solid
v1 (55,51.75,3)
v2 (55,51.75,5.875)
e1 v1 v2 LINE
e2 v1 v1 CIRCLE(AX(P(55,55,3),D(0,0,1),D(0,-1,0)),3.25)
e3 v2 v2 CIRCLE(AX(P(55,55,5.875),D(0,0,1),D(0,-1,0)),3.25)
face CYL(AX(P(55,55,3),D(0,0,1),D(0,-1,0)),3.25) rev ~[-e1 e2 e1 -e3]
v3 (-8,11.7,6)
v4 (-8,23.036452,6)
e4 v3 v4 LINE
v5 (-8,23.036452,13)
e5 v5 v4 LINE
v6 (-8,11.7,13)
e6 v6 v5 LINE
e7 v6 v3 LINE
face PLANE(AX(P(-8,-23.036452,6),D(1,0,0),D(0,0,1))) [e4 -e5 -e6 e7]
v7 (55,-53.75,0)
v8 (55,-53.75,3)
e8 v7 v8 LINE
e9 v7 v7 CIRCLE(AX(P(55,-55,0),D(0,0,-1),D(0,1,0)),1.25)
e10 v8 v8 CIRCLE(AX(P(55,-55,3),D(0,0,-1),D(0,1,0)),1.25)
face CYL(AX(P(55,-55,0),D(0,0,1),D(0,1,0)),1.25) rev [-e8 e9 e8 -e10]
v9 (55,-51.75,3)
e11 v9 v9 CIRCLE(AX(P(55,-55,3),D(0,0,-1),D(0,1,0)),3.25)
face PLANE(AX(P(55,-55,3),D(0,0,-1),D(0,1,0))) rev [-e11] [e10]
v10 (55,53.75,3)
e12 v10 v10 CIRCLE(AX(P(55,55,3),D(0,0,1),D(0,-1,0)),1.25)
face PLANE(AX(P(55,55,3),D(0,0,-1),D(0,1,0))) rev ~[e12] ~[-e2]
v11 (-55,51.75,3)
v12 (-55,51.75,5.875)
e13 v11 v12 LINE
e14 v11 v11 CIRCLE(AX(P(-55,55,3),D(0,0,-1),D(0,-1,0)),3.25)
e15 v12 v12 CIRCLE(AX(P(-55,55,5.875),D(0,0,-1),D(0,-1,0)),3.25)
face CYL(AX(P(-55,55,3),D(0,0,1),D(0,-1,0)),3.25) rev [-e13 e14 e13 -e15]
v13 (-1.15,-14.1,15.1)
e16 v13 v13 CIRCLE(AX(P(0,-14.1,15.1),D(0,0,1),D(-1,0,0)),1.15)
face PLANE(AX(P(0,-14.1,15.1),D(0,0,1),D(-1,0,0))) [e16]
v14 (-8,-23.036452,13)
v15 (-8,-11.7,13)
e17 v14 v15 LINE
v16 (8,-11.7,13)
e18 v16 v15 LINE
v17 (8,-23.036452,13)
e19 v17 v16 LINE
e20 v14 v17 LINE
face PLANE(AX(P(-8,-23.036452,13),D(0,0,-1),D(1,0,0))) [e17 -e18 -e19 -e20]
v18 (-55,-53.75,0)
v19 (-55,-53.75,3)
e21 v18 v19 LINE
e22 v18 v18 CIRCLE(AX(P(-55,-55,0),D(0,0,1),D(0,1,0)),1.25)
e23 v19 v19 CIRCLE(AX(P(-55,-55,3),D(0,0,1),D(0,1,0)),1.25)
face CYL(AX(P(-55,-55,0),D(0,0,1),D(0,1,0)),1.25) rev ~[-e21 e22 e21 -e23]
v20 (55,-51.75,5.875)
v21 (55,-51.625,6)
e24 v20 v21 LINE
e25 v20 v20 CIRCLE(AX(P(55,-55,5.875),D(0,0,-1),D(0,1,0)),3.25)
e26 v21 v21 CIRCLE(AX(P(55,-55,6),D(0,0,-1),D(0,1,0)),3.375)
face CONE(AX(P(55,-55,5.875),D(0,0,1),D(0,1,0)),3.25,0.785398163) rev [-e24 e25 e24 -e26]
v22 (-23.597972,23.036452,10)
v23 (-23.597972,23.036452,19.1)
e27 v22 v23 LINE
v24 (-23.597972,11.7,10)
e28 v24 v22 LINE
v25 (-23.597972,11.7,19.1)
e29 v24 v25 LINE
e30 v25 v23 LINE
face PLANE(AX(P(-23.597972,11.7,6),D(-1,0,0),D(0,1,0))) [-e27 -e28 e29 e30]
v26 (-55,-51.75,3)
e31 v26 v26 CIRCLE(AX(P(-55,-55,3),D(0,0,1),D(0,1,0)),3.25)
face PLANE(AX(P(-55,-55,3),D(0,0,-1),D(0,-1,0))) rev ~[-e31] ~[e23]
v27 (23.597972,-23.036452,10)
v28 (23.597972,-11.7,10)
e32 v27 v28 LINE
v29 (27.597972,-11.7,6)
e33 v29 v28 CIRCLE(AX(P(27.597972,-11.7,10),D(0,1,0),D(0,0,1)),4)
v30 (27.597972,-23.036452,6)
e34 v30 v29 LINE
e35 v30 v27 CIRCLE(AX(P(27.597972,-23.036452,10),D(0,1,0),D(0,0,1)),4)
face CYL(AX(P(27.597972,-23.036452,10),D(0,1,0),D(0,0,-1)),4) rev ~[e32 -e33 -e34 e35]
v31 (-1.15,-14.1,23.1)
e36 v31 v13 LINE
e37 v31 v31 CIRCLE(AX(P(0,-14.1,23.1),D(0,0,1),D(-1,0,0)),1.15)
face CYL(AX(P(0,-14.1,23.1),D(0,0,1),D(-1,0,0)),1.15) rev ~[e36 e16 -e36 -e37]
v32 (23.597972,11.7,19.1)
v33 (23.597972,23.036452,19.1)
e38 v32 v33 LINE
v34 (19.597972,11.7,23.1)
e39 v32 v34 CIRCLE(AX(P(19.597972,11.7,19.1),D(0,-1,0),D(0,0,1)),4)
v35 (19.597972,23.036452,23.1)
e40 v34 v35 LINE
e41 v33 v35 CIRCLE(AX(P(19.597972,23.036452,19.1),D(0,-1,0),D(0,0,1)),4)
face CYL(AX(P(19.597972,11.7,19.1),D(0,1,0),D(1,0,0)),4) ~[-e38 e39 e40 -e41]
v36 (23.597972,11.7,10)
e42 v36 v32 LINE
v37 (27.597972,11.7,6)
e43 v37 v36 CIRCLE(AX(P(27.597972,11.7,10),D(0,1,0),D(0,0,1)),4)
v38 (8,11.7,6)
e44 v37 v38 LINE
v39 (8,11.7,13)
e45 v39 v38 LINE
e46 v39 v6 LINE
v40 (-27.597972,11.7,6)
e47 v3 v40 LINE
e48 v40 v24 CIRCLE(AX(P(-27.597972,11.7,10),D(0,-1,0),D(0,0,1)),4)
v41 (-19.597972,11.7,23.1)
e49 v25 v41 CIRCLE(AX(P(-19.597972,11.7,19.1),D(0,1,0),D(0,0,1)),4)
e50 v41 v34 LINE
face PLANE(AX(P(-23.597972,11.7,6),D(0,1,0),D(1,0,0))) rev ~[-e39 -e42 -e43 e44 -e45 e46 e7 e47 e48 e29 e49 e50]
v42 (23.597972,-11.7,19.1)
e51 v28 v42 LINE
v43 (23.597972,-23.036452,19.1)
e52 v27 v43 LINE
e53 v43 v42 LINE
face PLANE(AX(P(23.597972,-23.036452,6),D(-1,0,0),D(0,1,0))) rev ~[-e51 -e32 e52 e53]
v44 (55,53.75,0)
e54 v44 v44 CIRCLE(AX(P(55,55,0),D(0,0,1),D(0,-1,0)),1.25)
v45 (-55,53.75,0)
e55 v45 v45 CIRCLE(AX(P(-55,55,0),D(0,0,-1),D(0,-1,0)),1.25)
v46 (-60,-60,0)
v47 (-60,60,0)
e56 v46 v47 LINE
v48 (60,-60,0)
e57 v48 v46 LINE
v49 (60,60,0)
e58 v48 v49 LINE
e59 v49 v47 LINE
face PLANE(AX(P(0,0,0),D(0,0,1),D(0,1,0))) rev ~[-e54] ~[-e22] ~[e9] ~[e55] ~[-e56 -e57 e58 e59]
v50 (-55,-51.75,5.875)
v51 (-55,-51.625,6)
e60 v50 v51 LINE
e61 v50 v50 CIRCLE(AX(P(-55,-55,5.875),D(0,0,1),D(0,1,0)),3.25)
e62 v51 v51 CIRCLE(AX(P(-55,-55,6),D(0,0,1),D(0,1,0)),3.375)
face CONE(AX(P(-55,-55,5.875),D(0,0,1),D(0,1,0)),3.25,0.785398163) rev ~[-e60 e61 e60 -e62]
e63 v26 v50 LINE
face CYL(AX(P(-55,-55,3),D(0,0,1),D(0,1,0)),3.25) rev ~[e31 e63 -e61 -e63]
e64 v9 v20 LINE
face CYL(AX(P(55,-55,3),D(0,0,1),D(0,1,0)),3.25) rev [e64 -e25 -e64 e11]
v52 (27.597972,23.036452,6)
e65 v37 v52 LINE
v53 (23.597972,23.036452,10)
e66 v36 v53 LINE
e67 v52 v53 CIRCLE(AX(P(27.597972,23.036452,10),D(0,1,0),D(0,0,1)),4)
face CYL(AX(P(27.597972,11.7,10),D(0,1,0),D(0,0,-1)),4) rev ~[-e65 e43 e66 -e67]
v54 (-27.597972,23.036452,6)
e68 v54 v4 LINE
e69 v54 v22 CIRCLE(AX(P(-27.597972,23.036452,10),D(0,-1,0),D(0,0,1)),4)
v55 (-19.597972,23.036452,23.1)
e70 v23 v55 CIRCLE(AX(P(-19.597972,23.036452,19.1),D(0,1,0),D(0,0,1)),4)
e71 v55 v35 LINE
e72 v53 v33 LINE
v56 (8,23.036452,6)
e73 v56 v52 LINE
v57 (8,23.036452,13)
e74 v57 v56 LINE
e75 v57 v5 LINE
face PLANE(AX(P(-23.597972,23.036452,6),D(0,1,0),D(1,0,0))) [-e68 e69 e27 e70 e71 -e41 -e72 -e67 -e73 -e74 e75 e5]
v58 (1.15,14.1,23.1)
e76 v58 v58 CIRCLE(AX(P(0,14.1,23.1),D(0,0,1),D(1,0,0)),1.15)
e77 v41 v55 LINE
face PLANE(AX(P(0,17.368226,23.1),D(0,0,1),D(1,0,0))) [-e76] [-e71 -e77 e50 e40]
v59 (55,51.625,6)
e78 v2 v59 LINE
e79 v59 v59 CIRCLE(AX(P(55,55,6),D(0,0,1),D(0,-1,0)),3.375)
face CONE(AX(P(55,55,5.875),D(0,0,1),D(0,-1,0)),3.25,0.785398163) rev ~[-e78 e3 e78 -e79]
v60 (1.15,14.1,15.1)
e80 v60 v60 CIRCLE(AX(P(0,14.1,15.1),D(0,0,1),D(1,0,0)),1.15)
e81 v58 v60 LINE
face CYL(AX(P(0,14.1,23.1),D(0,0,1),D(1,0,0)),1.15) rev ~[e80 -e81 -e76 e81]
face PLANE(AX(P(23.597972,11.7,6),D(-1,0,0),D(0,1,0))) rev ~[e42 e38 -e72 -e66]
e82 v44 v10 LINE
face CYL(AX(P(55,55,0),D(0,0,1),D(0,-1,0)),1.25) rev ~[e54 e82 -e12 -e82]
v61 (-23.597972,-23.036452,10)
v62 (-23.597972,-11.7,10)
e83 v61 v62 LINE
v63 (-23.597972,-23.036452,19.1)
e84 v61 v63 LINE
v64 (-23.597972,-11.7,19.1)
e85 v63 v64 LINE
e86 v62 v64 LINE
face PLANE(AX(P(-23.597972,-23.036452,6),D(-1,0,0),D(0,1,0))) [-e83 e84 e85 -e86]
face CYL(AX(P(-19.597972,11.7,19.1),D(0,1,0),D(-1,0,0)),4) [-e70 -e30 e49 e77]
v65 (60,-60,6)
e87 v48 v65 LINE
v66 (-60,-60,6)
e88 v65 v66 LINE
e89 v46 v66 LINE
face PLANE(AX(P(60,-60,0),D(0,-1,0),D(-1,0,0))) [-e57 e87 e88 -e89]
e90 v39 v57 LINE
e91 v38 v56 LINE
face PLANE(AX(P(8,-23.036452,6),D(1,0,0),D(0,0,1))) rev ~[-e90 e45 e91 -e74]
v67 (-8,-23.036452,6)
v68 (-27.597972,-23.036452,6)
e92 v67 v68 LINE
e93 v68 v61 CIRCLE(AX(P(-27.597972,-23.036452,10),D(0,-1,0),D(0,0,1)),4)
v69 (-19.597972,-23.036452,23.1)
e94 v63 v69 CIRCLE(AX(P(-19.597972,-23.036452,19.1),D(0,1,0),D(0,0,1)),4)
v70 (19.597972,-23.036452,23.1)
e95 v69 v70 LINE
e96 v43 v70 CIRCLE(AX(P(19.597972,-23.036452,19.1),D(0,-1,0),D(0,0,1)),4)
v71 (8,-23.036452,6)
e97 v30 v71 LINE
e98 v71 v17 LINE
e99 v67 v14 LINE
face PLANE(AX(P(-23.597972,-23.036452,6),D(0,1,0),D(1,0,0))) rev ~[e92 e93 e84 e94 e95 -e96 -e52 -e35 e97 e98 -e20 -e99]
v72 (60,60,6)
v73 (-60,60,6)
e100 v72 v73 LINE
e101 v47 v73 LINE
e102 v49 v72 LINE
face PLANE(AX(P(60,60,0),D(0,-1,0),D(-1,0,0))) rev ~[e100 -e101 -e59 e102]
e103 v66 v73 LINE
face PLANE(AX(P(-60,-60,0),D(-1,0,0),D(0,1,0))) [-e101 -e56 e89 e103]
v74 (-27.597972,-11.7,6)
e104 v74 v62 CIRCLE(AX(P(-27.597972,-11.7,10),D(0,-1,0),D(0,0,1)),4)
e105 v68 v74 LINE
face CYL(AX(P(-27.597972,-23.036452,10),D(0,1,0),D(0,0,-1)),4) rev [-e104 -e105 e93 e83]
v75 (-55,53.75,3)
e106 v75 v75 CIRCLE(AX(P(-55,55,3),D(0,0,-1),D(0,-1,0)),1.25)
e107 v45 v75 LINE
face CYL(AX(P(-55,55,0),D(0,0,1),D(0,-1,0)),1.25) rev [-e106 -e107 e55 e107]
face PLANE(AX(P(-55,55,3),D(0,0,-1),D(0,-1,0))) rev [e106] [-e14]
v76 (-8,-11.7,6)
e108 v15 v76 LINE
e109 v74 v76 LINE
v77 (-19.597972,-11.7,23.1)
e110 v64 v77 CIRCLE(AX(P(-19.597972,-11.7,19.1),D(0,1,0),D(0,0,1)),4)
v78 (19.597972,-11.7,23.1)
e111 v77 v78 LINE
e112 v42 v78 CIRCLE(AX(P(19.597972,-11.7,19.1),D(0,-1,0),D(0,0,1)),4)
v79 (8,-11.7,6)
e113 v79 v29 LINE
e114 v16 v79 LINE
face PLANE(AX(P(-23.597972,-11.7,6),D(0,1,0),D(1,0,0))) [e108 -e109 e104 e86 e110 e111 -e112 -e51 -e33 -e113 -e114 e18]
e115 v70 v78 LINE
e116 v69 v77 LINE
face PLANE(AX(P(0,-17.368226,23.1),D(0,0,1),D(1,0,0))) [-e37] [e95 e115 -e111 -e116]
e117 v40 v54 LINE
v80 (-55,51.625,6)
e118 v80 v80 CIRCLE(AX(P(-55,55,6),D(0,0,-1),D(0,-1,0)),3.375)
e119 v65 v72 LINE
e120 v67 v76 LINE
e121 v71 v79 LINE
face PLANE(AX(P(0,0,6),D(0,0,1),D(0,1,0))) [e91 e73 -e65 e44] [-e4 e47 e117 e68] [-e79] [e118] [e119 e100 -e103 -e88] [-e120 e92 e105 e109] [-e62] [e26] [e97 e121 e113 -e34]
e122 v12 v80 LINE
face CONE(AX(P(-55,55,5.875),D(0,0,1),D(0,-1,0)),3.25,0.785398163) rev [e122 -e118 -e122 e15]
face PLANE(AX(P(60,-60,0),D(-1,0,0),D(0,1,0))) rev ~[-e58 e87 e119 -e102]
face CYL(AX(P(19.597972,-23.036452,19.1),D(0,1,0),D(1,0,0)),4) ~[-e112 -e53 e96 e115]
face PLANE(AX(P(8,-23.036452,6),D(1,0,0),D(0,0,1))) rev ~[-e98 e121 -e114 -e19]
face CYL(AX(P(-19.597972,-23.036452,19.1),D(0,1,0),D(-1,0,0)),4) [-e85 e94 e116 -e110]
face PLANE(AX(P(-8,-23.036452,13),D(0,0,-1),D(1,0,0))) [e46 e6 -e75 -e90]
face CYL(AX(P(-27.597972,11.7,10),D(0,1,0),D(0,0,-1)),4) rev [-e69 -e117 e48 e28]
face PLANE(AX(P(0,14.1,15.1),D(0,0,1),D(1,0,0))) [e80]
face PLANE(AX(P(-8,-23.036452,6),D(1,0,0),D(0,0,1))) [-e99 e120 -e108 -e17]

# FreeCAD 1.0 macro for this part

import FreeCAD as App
import Part
import Sketcher
from FreeCAD import Vector
Q = App.Units.Quantity


def edges_at(feature, points):
    """Names of the edges that pass closest to the given points."""
    edges = feature.Shape.Edges
    near = lambda p: min(range(len(edges)), key=lambda i: edges[i].distToShape(Part.Vertex(*p))[0])
    return sorted({f"Edge{near(p) + 1}" for p in points})

doc = App.newDocument("Part")
params = doc.addObject("Spreadsheet::Sheet", "Params")
for row, (alias, value) in enumerate([
    ("sketch1_width", "120 mm"),
    ("pad1_length", "6 mm"),
    ("sketch2_width", "2 mm"),
    ("sketch2_height", "6 mm"),
    ("sketch2_height2", "3 mm"),
    ("sketch2_width2", "1.25 mm"),
    ("groove_angle", "360 deg"),
    ("sketch3_width", "2 mm"),
    ("sketch3_height", "6 mm"),
    ("sketch3_height2", "3 mm"),
    ("sketch3_width2", "1.25 mm"),
    ("groove2_angle", "360 deg"),
    ("pad2_length", "17.1 mm"),
    ("sketch5_width", "16 mm"),
    ("sketch5_height", "7 mm"),
    ("sketch6_diameter", "2.3 mm"),
    ("pocket2_length", "8 mm"),
    ("fillet_radius", "4 mm"),
], start=1):
    params.set(f"A{row}", alias)
    params.set(f"B{row}", "=" + value)
    params.setAlias(f"B{row}", alias)

body = doc.addObject("PartDesign::Body", "Body")

# Sketch on XY plane
sketch1 = doc.addObject("Sketcher::SketchObject", "Sketch")
body.addObject(sketch1)
sketch1.AttachmentSupport = (doc.XY_Plane, [""])
sketch1.MapMode = "FlatFace"
sketch1.addGeometry([
    Part.LineSegment(Vector(-60, -60, 0), Vector(60, -60, 0)),
    Part.LineSegment(Vector(60, -60, 0), Vector(60, 60, 0)),
    Part.LineSegment(Vector(60, 60, 0), Vector(-60, 60, 0)),
    Part.LineSegment(Vector(-60, 60, 0), Vector(-60, -60, 0)),
], False)
sketch1.addConstraint([
    Sketcher.Constraint("Coincident", 0, 2, 1, 1),
    Sketcher.Constraint("Coincident", 1, 2, 2, 1),
    Sketcher.Constraint("Coincident", 2, 2, 3, 1),
    Sketcher.Constraint("Coincident", 3, 2, 0, 1),
    Sketcher.Constraint("Horizontal", 0),
    Sketcher.Constraint("Vertical", 1),
    Sketcher.Constraint("Horizontal", 2),
    Sketcher.Constraint("Vertical", 3),
    Sketcher.Constraint("Symmetric", 0, 2, 2, 2, -1, 1),
    Sketcher.Constraint("Equal", 2, 1),
    Sketcher.Constraint("DistanceX", 0, 1, 0, 2, 120.0),
])
sketch1.setExpression("Constraints[10]", "Params.sketch1_width")
pad1 = doc.addObject("PartDesign::Pad", "Pad")
body.addObject(pad1)
pad1.Profile = sketch1
pad1.setExpression("Length", "Params.pad1_length")

# Sketch on YZ plane
sketch2 = doc.addObject("Sketcher::SketchObject", "Sketch001")
body.addObject(sketch2)
sketch2.AttachmentSupport = (doc.YZ_Plane, [""])
sketch2.MapMode = "FlatFace"
sketch2.AttachmentOffset = App.Placement(Vector(0, 0, -55), App.Rotation())
sketch2.addGeometry([
    Part.LineSegment(Vector(55, 0, 0), Vector(55, 6, 0)),  # 0
    Part.LineSegment(Vector(55, 6, 0), Vector(51.62, 6, 0)),  # 1
    Part.LineSegment(Vector(51.62, 6, 0), Vector(51.75, 5.88, 0)),  # 2
    Part.LineSegment(Vector(51.75, 5.88, 0), Vector(51.75, 3, 0)),  # 3
    Part.LineSegment(Vector(51.75, 3, 0), Vector(53.75, 3, 0)),  # 4
    Part.LineSegment(Vector(53.75, 3, 0), Vector(53.75, 0, 0)),  # 5
    Part.LineSegment(Vector(53.75, 0, 0), Vector(55, 0, 0)),  # 6
], False)
sketch2.addGeometry(Part.LineSegment(Vector(55, 6, 0), Vector(55, 0, 0)), True)  # axis
sketch2.addConstraint([
    Sketcher.Constraint("Coincident", 0, 2, 1, 1),
    Sketcher.Constraint("Coincident", 1, 2, 2, 1),
    Sketcher.Constraint("Coincident", 2, 2, 3, 1),
    Sketcher.Constraint("Coincident", 3, 2, 4, 1),
    Sketcher.Constraint("Coincident", 4, 2, 5, 1),
    Sketcher.Constraint("Coincident", 5, 2, 6, 1),
    Sketcher.Constraint("Coincident", 6, 2, 0, 1),
    Sketcher.Constraint("Vertical", 0),
    Sketcher.Constraint("Horizontal", 1),
    Sketcher.Constraint("Vertical", 3),
    Sketcher.Constraint("Horizontal", 4),
    Sketcher.Constraint("Vertical", 5),
    Sketcher.Constraint("Horizontal", 6),
    Sketcher.Constraint("Vertical", 7),
    Sketcher.Constraint("Coincident", 7, 1, 0, 2),
    Sketcher.Constraint("PointOnObject", 5, 2, -1),
    Sketcher.Constraint("PointOnObject", 7, 2, -1),
    Sketcher.Constraint("DistanceX", 4, 1, 4, 2, 2.0),
    Sketcher.Constraint("DistanceY", 0, 1, 0, 2, 6.0),
    Sketcher.Constraint("DistanceY", 5, 2, 5, 1, 3.0),
    Sketcher.Constraint("Angle", 2, Q("-45 deg")),
    Sketcher.Constraint("DistanceX", -1, 1, 0, 2, 55.0),
    Sketcher.Constraint("DistanceX", 6, 1, 6, 2, 1.25),
    Sketcher.Constraint("DistanceX", 1, 2, 1, 1, 3.375),
])
sketch2.setExpression("Constraints[17]", "Params.sketch2_width")
sketch2.setExpression("Constraints[18]", "Params.sketch2_height")
sketch2.setExpression("Constraints[19]", "Params.sketch2_height2")
sketch2.setExpression("Constraints[22]", "Params.sketch2_width2")
groove = doc.addObject("PartDesign::Groove", "Groove")
body.addObject(groove)
groove.Profile = sketch2
groove.ReferenceAxis = (sketch2, ["Axis0"])
groove.setExpression("Angle", "Params.groove_angle")
doc.recompute()

mirrored = doc.addObject("PartDesign::Mirrored", "Mirrored")
body.addObject(mirrored)
mirrored.Originals = [groove]
mirrored.MirrorPlane = (doc.YZ_Plane, [""])
body.Tip = mirrored
doc.recompute()

mirrored2 = doc.addObject("PartDesign::Mirrored", "Mirrored001")
body.addObject(mirrored2)
mirrored2.Originals = [groove]
mirrored2.MirrorPlane = (doc.XZ_Plane, [""])
body.Tip = mirrored2

# Sketch on YZ plane
sketch3 = doc.addObject("Sketcher::SketchObject", "Sketch002")
body.addObject(sketch3)
sketch3.AttachmentSupport = (doc.YZ_Plane, [""])
sketch3.MapMode = "FlatFace"
sketch3.AttachmentOffset = App.Placement(Vector(0, 0, 55), App.Rotation())
sketch3.addGeometry([
    Part.LineSegment(Vector(-55, 0, 0), Vector(-55, 6, 0)),  # 0
    Part.LineSegment(Vector(-55, 6, 0), Vector(-51.62, 6, 0)),  # 1
    Part.LineSegment(Vector(-51.62, 6, 0), Vector(-51.75, 5.88, 0)),  # 2
    Part.LineSegment(Vector(-51.75, 5.88, 0), Vector(-51.75, 3, 0)),  # 3
    Part.LineSegment(Vector(-51.75, 3, 0), Vector(-53.75, 3, 0)),  # 4
    Part.LineSegment(Vector(-53.75, 3, 0), Vector(-53.75, 0, 0)),  # 5
    Part.LineSegment(Vector(-53.75, 0, 0), Vector(-55, 0, 0)),  # 6
], False)
sketch3.addGeometry(Part.LineSegment(Vector(-55, 6, 0), Vector(-55, 0, 0)), True)  # axis
sketch3.addConstraint([
    Sketcher.Constraint("Coincident", 0, 2, 1, 1),
    Sketcher.Constraint("Coincident", 1, 2, 2, 1),
    Sketcher.Constraint("Coincident", 2, 2, 3, 1),
    Sketcher.Constraint("Coincident", 3, 2, 4, 1),
    Sketcher.Constraint("Coincident", 4, 2, 5, 1),
    Sketcher.Constraint("Coincident", 5, 2, 6, 1),
    Sketcher.Constraint("Coincident", 6, 2, 0, 1),
    Sketcher.Constraint("Vertical", 0),
    Sketcher.Constraint("Horizontal", 1),
    Sketcher.Constraint("Vertical", 3),
    Sketcher.Constraint("Horizontal", 4),
    Sketcher.Constraint("Vertical", 5),
    Sketcher.Constraint("Horizontal", 6),
    Sketcher.Constraint("Vertical", 7),
    Sketcher.Constraint("Coincident", 7, 1, 0, 2),
    Sketcher.Constraint("PointOnObject", 5, 2, -1),
    Sketcher.Constraint("PointOnObject", 7, 2, -1),
    Sketcher.Constraint("DistanceX", 4, 2, 4, 1, 2.0),
    Sketcher.Constraint("DistanceY", 0, 1, 0, 2, 6.0),
    Sketcher.Constraint("DistanceY", 5, 2, 5, 1, 3.0),
    Sketcher.Constraint("Angle", 2, Q("-135 deg")),
    Sketcher.Constraint("DistanceX", 0, 2, -1, 1, 55.0),
    Sketcher.Constraint("DistanceX", 6, 2, 6, 1, 1.25),
    Sketcher.Constraint("DistanceX", 1, 1, 1, 2, 3.375),
])
sketch3.setExpression("Constraints[17]", "Params.sketch3_width")
sketch3.setExpression("Constraints[18]", "Params.sketch3_height")
sketch3.setExpression("Constraints[19]", "Params.sketch3_height2")
sketch3.setExpression("Constraints[22]", "Params.sketch3_width2")
groove2 = doc.addObject("PartDesign::Groove", "Groove001")
body.addObject(groove2)
groove2.Profile = sketch3
groove2.ReferenceAxis = (sketch3, ["Axis0"])
groove2.setExpression("Angle", "Params.groove2_angle")

# Sketch on XY plane
sketch4 = doc.addObject("Sketcher::SketchObject", "Sketch003")
body.addObject(sketch4)
sketch4.AttachmentSupport = (doc.XY_Plane, [""])
sketch4.MapMode = "FlatFace"
sketch4.AttachmentOffset = App.Placement(Vector(0, 0, 6), App.Rotation())
sketch4.addGeometry([
    Part.LineSegment(Vector(-24, -12, 0), Vector(-24, -23, 0)),  # 0
    Part.LineSegment(Vector(-24, -23, 0), Vector(24, -23, 0)),  # 1
    Part.LineSegment(Vector(24, -23, 0), Vector(24, -12, 0)),  # 2
    Part.LineSegment(Vector(24, -12, 0), Vector(-24, -12, 0)),  # 3
    Part.LineSegment(Vector(-24, 23, 0), Vector(-24, 12, 0)),  # 4
    Part.LineSegment(Vector(-24, 12, 0), Vector(24, 12, 0)),  # 5
    Part.LineSegment(Vector(24, 12, 0), Vector(24, 23, 0)),  # 6
    Part.LineSegment(Vector(24, 23, 0), Vector(-24, 23, 0)),  # 7
], False)
sketch4.addConstraint([
    Sketcher.Constraint("Coincident", 0, 2, 1, 1),
    Sketcher.Constraint("Coincident", 1, 2, 2, 1),
    Sketcher.Constraint("Coincident", 2, 2, 3, 1),
    Sketcher.Constraint("Coincident", 3, 2, 0, 1),
    Sketcher.Constraint("Coincident", 4, 2, 5, 1),
    Sketcher.Constraint("Coincident", 5, 2, 6, 1),
    Sketcher.Constraint("Coincident", 6, 2, 7, 1),
    Sketcher.Constraint("Coincident", 7, 2, 4, 1),
    Sketcher.Constraint("Vertical", 0),
    Sketcher.Constraint("Horizontal", 1),
    Sketcher.Constraint("Vertical", 2),
    Sketcher.Constraint("Horizontal", 3),
    Sketcher.Constraint("Vertical", 4),
    Sketcher.Constraint("Horizontal", 5),
    Sketcher.Constraint("Vertical", 6),
    Sketcher.Constraint("Horizontal", 7),
    Sketcher.Constraint("Symmetric", 2, 2, 4, 2, -1, 1),
    Sketcher.Constraint("Symmetric", 0, 2, 6, 2, -1, 1),
    Sketcher.Constraint("Vertical", 3, 2, 4, 2),
    Sketcher.Constraint("DistanceY", 2, 2, -1, 1, 11.7),
    Sketcher.Constraint("DistanceX", 1, 1, 1, 2, 47.195945),
    Sketcher.Constraint("DistanceY", 0, 2, 0, 1, 11.336452),
])
pad2 = doc.addObject("PartDesign::Pad", "Pad001")
body.addObject(pad2)
pad2.Profile = sketch4
pad2.setExpression("Length", "Params.pad2_length")

# Sketch on XZ plane
sketch5 = doc.addObject("Sketcher::SketchObject", "Sketch004")
body.addObject(sketch5)
sketch5.AttachmentSupport = (doc.XZ_Plane, [""])
sketch5.MapMode = "FlatFace"
sketch5.AttachmentOffset = App.Placement(Vector(0, 0, 23.036452), App.Rotation())
sketch5.addGeometry([
    Part.LineSegment(Vector(-8, 13, 0), Vector(-8, 6, 0)),
    Part.LineSegment(Vector(-8, 6, 0), Vector(8, 6, 0)),
    Part.LineSegment(Vector(8, 6, 0), Vector(8, 13, 0)),
    Part.LineSegment(Vector(8, 13, 0), Vector(-8, 13, 0)),
], False)
sketch5.addConstraint([
    Sketcher.Constraint("Coincident", 0, 2, 1, 1),
    Sketcher.Constraint("Coincident", 1, 2, 2, 1),
    Sketcher.Constraint("Coincident", 2, 2, 3, 1),
    Sketcher.Constraint("Coincident", 3, 2, 0, 1),
    Sketcher.Constraint("Vertical", 0),
    Sketcher.Constraint("Horizontal", 1),
    Sketcher.Constraint("Vertical", 2),
    Sketcher.Constraint("Horizontal", 3),
    Sketcher.Constraint("DistanceX", 1, 1, 1, 2, 16.0),
    Sketcher.Constraint("DistanceY", 0, 2, 0, 1, 7.0),
    Sketcher.Constraint("DistanceX", 0, 2, -1, 1, 8.0),
    Sketcher.Constraint("DistanceY", -1, 1, 0, 2, 6.0),
])
sketch5.setExpression("Constraints[8]", "Params.sketch5_width")
sketch5.setExpression("Constraints[9]", "Params.sketch5_height")
pocket1 = doc.addObject("PartDesign::Pocket", "Pocket")
body.addObject(pocket1)
pocket1.Profile = sketch5
pocket1.Type = "ThroughAll"

# Sketch on XY plane
sketch6 = doc.addObject("Sketcher::SketchObject", "Sketch005")
body.addObject(sketch6)
sketch6.AttachmentSupport = (doc.XY_Plane, [""])
sketch6.MapMode = "FlatFace"
sketch6.AttachmentOffset = App.Placement(Vector(0, 0, 23.1), App.Rotation())
sketch6.addGeometry([
    Part.Circle(Vector(0, 14.1, 0), Vector(0, 0, 1), 1.1),
    Part.Circle(Vector(0, -14.1, 0), Vector(0, 0, 1), 1.1),
], False)
sketch6.addConstraint([
    Sketcher.Constraint("Equal", 0, 1),
    Sketcher.Constraint("Symmetric", 0, 3, 1, 3, -1, 1),
    Sketcher.Constraint("PointOnObject", 0, 3, -2),
    Sketcher.Constraint("Diameter", 0, 2.3),
    Sketcher.Constraint("DistanceY", -1, 1, 0, 3, 14.1),
])
sketch6.setExpression("Constraints[3]", "Params.sketch6_diameter")
pocket2 = doc.addObject("PartDesign::Pocket", "Pocket001")
body.addObject(pocket2)
pocket2.Profile = sketch6
pocket2.setExpression("Length", "Params.pocket2_length")
doc.recompute()

fillet = doc.addObject("PartDesign::Fillet", "Fillet")
body.addObject(fillet)
fillet.Base = (pocket2, edges_at(pocket2, [
    (-23.598, -17.368, 6),
    (23.598, -17.368, 6),
    (-23.598, -17.368, 23.1),
    (23.598, -17.368, 23.1),
    (-23.598, 17.368, 6),
    (23.598, 17.368, 6),
    (-23.598, 17.368, 23.1),
    (23.598, 17.368, 23.1),
]))
fillet.setExpression("Radius", "Params.fillet_radius")

doc.recompute()
